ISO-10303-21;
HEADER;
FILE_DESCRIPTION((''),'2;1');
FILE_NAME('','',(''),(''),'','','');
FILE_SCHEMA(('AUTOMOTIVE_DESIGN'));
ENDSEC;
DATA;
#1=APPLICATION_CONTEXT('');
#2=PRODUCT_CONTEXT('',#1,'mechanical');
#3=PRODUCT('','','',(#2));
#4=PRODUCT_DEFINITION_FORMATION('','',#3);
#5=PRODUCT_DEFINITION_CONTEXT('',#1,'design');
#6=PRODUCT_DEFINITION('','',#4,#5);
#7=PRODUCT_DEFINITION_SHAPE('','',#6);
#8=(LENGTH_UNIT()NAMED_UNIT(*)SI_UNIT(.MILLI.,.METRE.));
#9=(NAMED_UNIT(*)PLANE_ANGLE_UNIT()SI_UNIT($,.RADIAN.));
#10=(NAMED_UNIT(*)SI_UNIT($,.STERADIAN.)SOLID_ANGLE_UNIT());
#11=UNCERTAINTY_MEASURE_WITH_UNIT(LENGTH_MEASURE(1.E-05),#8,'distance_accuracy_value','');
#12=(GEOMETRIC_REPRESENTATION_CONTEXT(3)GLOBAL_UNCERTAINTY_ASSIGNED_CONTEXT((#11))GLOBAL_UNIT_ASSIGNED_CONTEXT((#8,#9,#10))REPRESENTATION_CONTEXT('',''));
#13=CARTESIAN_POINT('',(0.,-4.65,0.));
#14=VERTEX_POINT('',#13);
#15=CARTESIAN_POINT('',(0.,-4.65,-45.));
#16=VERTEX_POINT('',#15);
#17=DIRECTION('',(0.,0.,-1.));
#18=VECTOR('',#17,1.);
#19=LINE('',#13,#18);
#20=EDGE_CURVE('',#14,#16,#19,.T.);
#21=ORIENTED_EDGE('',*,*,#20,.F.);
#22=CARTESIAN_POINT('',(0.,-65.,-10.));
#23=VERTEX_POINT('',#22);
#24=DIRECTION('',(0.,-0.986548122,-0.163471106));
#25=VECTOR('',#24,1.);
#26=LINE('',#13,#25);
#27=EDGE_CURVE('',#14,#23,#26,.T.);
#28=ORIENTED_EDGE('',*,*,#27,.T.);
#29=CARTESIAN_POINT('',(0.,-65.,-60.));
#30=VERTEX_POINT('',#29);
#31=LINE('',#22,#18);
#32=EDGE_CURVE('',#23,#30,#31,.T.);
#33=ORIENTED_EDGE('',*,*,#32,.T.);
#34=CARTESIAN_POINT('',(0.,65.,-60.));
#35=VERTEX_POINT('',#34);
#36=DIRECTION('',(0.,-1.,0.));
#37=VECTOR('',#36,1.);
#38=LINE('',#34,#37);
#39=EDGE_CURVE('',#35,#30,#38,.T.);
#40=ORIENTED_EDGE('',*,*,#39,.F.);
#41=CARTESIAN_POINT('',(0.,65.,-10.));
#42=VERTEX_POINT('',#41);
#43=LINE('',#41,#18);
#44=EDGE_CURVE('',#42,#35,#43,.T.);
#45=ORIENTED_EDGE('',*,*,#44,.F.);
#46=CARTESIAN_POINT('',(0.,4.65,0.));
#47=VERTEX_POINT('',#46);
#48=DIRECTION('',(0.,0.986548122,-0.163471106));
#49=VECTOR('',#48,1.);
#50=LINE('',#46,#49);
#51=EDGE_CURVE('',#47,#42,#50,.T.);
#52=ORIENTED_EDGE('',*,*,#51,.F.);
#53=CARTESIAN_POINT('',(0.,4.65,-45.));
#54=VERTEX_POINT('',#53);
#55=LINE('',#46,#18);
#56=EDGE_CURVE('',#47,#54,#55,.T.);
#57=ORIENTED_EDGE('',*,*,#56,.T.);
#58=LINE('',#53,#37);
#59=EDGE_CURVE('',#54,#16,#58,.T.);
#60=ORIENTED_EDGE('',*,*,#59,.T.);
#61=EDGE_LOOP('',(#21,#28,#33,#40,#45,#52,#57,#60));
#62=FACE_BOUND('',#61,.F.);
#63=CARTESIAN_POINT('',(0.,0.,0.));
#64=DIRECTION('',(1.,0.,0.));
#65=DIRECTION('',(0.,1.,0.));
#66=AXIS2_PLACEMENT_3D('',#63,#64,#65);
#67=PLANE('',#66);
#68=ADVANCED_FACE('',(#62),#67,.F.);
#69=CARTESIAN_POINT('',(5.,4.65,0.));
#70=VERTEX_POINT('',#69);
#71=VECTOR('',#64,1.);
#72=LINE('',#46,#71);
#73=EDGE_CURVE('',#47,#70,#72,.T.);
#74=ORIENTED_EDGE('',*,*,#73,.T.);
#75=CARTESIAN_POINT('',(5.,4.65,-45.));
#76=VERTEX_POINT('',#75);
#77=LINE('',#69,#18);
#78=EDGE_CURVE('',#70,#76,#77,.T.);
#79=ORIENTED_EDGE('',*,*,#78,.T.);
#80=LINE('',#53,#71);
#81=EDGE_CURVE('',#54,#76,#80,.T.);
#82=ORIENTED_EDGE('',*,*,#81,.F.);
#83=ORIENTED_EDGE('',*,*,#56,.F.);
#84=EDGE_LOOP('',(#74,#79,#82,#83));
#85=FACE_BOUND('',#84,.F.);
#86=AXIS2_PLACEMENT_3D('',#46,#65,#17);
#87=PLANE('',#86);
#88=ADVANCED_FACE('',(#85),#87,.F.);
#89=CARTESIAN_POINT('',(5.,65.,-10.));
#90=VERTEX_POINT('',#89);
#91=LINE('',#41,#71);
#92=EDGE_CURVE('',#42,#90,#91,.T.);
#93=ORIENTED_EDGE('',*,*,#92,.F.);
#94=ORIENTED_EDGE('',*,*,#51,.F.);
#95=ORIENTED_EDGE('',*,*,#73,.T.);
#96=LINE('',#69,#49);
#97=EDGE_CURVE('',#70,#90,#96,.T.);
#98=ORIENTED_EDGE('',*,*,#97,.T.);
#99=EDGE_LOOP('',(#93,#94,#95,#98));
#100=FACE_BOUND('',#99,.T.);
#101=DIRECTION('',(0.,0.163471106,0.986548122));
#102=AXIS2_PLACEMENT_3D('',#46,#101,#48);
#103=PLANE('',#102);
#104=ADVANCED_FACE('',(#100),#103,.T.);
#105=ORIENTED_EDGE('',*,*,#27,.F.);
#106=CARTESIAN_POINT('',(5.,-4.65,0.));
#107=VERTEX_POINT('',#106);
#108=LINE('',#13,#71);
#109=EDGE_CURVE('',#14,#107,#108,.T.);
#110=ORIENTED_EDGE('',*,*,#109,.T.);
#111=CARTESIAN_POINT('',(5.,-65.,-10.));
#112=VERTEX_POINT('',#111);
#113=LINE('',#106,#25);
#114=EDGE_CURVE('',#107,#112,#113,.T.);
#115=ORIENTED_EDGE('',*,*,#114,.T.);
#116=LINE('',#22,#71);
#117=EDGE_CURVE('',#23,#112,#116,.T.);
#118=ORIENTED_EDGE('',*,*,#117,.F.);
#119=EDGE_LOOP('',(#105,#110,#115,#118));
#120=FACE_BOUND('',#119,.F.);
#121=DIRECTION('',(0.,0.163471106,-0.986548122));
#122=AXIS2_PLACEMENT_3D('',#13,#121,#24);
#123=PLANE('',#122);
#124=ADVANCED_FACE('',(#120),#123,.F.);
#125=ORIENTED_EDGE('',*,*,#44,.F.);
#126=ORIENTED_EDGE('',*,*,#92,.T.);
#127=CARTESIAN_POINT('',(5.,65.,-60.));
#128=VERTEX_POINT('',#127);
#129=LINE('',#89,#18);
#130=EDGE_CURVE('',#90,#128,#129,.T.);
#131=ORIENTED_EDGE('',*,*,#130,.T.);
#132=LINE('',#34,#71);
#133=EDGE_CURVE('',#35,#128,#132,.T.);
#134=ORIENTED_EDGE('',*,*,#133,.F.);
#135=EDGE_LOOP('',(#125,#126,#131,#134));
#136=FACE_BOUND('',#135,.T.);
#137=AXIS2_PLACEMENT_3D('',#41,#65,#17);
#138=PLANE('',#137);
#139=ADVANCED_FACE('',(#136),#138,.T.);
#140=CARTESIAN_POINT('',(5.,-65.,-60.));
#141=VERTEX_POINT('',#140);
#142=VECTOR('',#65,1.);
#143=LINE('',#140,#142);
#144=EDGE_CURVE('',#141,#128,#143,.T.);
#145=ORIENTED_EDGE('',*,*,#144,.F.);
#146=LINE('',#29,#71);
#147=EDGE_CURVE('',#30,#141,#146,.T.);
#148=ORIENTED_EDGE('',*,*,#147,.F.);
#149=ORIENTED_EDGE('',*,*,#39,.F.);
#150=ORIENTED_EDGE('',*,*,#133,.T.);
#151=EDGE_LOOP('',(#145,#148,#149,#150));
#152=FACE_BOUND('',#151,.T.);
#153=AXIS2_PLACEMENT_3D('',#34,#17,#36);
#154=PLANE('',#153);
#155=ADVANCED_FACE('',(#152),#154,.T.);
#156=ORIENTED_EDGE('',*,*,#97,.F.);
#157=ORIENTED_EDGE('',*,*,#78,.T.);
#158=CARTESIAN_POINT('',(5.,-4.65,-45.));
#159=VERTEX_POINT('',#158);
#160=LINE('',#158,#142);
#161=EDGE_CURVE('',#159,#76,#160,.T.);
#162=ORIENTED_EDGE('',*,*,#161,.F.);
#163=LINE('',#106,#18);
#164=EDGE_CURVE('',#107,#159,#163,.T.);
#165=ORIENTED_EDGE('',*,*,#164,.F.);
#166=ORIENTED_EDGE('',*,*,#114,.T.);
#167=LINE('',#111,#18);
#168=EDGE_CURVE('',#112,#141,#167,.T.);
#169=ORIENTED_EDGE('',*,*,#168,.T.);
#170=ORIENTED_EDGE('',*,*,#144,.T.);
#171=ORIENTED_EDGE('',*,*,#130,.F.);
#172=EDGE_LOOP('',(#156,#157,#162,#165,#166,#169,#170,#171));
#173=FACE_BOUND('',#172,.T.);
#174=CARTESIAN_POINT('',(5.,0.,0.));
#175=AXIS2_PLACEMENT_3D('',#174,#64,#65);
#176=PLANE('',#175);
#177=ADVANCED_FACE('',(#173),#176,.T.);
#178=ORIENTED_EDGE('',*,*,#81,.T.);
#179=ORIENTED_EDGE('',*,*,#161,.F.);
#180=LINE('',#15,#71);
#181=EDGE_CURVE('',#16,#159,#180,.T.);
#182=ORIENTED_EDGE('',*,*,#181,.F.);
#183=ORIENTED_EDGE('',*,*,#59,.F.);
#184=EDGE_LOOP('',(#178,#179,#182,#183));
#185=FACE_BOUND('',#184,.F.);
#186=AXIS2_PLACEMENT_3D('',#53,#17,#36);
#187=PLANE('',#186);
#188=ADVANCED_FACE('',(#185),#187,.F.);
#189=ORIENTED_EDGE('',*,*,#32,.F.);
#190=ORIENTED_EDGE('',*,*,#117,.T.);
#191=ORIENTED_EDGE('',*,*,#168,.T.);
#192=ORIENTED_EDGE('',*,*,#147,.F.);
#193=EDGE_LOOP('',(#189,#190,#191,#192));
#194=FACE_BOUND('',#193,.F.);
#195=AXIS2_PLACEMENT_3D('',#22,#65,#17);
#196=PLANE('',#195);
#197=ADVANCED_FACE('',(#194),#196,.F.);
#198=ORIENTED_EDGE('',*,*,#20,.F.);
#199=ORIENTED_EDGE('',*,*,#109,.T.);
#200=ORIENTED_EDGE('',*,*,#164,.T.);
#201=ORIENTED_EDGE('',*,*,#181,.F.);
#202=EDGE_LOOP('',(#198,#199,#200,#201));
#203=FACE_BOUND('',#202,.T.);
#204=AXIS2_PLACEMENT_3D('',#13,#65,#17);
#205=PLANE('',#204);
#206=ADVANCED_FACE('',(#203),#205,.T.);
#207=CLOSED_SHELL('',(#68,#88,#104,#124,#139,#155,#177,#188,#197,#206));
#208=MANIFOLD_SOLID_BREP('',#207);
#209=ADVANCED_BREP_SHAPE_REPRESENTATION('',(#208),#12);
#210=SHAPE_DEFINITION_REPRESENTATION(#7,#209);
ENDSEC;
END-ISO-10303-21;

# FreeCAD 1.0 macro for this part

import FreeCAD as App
import Part
import Sketcher

V = App.Vector
Q = App.Units.Quantity


def add_polygon(sketch, points):
    """Adds a closed chain of lines whose ends are joined by coincident constraints."""
    first, n = sketch.GeometryCount, len(points)
    for a, b in zip(points, points[1:] + points[:1]):
        sketch.addGeometry(Part.LineSegment(App.Vector(*a, 0), App.Vector(*b, 0)), False)
    for i in range(n):
        sketch.addConstraint(Sketcher.Constraint("Coincident", first + i, 2, first + (i + 1) % n, 1))

doc = App.newDocument("Part")
body = doc.addObject("PartDesign::Body", "Body")

sketch1 = doc.addObject("Sketcher::SketchObject", "Sketch")
body.addObject(sketch1)
sketch1.AttachmentSupport = (doc.YZ_Plane, [""])
sketch1.MapMode = "FlatFace"
add_polygon(sketch1, [(5, -45), (-5, -45), (-5, 0), (-65, -10), (-65, -60), (65, -60), (65, -10), (5, 0)])
sketch1.addConstraint([
    Sketcher.Constraint("Horizontal", 0),
    Sketcher.Constraint("Vertical", 1),
    Sketcher.Constraint("Vertical", 3),
    Sketcher.Constraint("Horizontal", 4),
    Sketcher.Constraint("Vertical", 5),
    Sketcher.Constraint("Vertical", 7),
    Sketcher.Constraint("Symmetric", 1, 2, 6, 2, -1, 1),
    Sketcher.Constraint("Symmetric", 2, 2, 5, 2, -2),
    Sketcher.Constraint("PointOnObject", 1, 2, -1),
    Sketcher.Constraint("DistanceX", 4, 1, 4, 2, Q("130 mm")),
    Sketcher.Constraint("DistanceY", 1, 1, 1, 2, Q("45 mm")),
    Sketcher.Constraint("DistanceY", 2, 2, -1, 1, Q("10 mm")),
    Sketcher.Constraint("DistanceY", 3, 2, -1, 1, Q("60 mm")),
    Sketcher.Constraint("DistanceX", 0, 2, -1, 1, Q("4.65 mm")),
])
pad1 = doc.addObject("PartDesign::Pad", "Pad")
body.addObject(pad1)
pad1.Profile = sketch1
pad1.Length = 5

doc.recompute()
